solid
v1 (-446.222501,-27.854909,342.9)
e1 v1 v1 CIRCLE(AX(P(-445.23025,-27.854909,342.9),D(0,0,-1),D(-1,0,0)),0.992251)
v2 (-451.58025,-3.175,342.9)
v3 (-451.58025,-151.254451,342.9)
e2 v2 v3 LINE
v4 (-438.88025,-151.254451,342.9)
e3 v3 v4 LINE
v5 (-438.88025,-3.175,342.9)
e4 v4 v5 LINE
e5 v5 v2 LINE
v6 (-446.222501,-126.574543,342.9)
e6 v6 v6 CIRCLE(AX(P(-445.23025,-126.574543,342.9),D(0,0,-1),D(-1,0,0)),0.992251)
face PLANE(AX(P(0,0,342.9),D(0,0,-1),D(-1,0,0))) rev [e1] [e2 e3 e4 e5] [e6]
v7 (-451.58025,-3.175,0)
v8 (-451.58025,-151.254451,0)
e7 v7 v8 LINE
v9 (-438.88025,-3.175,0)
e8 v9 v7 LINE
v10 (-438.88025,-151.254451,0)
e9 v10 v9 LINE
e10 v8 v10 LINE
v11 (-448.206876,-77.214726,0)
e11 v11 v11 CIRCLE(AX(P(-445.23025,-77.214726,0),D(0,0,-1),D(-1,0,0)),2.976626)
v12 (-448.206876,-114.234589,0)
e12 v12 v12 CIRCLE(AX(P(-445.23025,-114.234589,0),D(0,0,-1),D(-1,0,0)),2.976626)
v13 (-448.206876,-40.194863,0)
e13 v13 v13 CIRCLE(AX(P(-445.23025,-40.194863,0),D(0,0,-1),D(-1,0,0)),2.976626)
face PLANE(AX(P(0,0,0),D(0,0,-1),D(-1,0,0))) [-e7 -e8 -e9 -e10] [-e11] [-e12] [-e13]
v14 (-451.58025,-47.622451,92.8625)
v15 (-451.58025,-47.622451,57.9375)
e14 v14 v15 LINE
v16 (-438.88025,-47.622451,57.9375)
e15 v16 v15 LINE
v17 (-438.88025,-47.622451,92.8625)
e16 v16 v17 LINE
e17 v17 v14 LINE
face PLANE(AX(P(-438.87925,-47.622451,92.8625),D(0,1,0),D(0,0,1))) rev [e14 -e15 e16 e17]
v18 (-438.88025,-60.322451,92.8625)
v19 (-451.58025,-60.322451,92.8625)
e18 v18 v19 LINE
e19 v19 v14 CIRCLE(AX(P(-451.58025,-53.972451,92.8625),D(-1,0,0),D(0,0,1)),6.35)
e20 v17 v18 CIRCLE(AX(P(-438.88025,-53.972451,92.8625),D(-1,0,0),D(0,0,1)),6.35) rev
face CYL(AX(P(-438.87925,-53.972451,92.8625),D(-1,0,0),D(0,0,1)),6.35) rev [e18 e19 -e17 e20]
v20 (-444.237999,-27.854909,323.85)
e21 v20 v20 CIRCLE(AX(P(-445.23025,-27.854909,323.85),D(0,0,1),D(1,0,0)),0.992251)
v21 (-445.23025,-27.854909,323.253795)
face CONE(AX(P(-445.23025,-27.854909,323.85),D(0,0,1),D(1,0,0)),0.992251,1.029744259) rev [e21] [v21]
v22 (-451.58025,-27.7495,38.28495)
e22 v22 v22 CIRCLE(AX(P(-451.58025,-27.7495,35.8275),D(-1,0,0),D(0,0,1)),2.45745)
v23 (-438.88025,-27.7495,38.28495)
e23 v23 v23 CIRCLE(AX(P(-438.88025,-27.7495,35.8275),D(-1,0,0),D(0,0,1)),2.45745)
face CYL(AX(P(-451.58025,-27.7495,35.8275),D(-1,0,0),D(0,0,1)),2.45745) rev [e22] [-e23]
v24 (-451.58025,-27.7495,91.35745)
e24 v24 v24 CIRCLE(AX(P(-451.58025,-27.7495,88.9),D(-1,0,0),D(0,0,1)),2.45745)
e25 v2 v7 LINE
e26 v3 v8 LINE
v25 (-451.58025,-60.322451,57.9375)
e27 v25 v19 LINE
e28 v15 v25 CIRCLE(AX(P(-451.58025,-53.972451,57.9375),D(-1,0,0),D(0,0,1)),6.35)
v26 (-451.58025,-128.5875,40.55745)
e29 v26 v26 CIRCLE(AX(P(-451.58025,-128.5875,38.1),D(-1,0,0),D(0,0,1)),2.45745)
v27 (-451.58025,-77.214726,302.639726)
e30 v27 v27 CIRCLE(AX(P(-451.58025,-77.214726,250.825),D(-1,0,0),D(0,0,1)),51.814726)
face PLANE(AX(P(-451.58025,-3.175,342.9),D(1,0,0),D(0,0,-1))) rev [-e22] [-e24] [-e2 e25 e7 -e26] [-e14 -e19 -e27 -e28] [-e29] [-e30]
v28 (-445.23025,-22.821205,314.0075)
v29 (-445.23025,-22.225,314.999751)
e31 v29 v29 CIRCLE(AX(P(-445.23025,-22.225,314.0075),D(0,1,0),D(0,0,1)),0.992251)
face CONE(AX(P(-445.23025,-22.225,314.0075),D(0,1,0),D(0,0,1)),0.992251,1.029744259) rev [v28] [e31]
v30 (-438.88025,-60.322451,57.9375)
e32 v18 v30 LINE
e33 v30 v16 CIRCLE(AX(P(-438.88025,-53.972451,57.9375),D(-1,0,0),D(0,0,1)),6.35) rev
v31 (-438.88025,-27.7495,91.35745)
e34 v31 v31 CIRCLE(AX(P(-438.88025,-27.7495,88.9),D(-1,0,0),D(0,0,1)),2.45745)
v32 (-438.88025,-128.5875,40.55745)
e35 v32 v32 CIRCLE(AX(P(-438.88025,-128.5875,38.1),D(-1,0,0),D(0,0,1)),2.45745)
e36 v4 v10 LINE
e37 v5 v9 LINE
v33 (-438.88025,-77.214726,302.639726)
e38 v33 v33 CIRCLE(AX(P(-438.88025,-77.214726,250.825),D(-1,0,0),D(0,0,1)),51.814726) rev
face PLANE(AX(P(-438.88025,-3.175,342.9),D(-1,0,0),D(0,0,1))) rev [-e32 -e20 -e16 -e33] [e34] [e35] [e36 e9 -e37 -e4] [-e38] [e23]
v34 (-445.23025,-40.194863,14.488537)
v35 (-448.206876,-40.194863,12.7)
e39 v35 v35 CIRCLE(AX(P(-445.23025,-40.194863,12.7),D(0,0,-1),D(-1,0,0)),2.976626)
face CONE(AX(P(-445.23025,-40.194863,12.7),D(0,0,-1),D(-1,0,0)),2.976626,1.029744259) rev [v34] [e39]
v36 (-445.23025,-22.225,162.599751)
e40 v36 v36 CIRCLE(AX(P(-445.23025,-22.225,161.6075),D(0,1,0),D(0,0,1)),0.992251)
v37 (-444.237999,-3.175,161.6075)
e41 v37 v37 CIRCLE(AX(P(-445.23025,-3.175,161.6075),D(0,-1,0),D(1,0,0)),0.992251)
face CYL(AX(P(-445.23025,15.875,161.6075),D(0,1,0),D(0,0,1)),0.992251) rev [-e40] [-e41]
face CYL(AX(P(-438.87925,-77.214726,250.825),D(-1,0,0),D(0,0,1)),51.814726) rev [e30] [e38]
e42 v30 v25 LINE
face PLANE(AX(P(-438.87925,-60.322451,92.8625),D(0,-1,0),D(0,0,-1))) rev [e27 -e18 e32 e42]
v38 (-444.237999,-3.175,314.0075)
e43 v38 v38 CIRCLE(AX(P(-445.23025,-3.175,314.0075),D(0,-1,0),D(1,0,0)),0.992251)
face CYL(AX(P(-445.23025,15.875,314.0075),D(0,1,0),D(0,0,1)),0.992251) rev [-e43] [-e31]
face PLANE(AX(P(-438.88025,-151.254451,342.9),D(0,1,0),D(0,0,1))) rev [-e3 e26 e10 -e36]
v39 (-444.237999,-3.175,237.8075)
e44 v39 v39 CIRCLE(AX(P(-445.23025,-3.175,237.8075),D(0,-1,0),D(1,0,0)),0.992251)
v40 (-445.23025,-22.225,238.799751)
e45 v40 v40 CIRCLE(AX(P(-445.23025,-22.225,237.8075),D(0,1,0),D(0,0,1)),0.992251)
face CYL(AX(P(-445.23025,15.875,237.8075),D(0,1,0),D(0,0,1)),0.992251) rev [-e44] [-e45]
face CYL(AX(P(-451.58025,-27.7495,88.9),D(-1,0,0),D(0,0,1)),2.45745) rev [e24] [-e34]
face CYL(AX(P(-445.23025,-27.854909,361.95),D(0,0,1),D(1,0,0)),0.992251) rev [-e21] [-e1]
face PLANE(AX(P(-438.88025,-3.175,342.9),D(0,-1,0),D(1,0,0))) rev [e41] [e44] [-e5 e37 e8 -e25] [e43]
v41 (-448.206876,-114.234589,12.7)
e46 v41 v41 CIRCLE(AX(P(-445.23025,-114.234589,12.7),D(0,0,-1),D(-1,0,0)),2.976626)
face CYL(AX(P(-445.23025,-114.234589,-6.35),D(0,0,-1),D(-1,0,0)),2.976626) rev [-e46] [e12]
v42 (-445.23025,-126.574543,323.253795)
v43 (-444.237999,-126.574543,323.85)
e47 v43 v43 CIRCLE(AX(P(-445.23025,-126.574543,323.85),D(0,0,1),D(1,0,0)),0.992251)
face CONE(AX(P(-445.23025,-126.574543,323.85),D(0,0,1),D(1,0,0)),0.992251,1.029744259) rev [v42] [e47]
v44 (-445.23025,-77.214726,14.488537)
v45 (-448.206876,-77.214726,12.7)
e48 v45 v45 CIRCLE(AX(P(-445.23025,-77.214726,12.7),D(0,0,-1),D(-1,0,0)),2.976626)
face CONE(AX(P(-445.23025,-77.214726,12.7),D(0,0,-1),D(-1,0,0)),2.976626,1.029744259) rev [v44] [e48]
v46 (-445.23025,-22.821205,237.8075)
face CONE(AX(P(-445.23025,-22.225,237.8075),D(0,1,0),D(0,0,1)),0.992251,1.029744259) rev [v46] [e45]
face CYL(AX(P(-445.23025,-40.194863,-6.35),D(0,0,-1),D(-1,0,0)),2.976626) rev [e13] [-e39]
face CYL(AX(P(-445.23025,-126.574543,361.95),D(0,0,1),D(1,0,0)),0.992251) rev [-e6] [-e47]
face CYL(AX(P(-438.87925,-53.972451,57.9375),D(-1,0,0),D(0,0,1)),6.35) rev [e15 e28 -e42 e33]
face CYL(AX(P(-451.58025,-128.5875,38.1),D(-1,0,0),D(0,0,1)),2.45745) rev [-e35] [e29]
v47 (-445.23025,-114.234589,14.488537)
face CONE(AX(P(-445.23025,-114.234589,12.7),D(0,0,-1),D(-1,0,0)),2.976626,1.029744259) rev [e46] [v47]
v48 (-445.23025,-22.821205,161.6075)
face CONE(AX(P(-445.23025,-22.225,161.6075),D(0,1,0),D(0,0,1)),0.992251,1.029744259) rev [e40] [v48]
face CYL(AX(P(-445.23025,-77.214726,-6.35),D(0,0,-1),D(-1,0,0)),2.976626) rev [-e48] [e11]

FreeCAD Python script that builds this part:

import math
import FreeCAD as App
import Part
import Sketcher

V = App.Vector
Q = App.Units.Quantity

doc = App.newDocument("Part")
body = doc.addObject("PartDesign::Body", "Body")

# Sketch on XY plane
sketch1 = doc.addObject("Sketcher::SketchObject", "Sketch")
body.addObject(sketch1)
sketch1.AttachmentSupport = (doc.XY_Plane, [""])
sketch1.MapMode = "FlatFace"
sketch1.addGeometry([
    Part.LineSegment(V(-452, -3, 0), V(-452, -151, 0)),
    Part.LineSegment(V(-452, -151, 0), V(-439, -151, 0)),
    Part.LineSegment(V(-439, -151, 0), V(-439, -3, 0)),
    Part.LineSegment(V(-439, -3, 0), V(-452, -3, 0)),
], False)
sketch1.addConstraint([
    Sketcher.Constraint("Coincident", 0, 2, 1, 1),
    Sketcher.Constraint("Coincident", 1, 2, 2, 1),
    Sketcher.Constraint("Coincident", 2, 2, 3, 1),
    Sketcher.Constraint("Coincident", 3, 2, 0, 1),
    Sketcher.Constraint("Vertical", 0),
    Sketcher.Constraint("Horizontal", 1),
    Sketcher.Constraint("Vertical", 2),
    Sketcher.Constraint("Horizontal", 3),
    Sketcher.Constraint("DistanceX", 1, 1, 1, 2, Q("0.5 in")),
    Sketcher.Constraint("DistanceY", 2, 2, -1, 1, Q("0.125 in")),
    Sketcher.Constraint("DistanceY", 0, 2, 0, 1, 148.079451),
    Sketcher.Constraint("DistanceX", 0, 2, -1, 1, 451.58025),
])
pad1 = doc.addObject("PartDesign::Pad", "Pad")
body.addObject(pad1)
pad1.Profile = sketch1
pad1.Length = Q("13.5 in")

# Sketch on XY plane
sketch2 = doc.addObject("Sketcher::SketchObject", "Sketch001")
body.addObject(sketch2)
sketch2.AttachmentSupport = (doc.XY_Plane, [""])
sketch2.MapMode = "FlatFace"
sketch2.AttachmentOffset = App.Placement(V(0, 0, -0.25 * 25.4), App.Rotation())
sketch2.addGeometry([
    Part.Circle(V(-445.2, -40.2, 0), V(0, 0, 1), 3),  # 0
    Part.Circle(V(-445.2, -77.2, 0), V(0, 0, 1), 3),  # 1
    Part.Circle(V(-445.2, -114.2, 0), V(0, 0, 1), 3),  # 2
    Part.Circle(V(-281.2, -179.1, 0), V(0, 0, 1), 3),  # 3
    Part.Circle(V(-281.2, -214.3, 0), V(0, 0, 1), 3),  # 4
    Part.Circle(V(-227, -186.7, 0), V(0, 0, 1), 3),  # 5
    Part.Circle(V(-182.4, -186.7, 0), V(0, 0, 1), 3),  # 6
    Part.Circle(V(-137.8, -186.7, 0), V(0, 0, 1), 3),  # 7
    Part.Circle(V(-83.6, -214.3, 0), V(0, 0, 1), 3),  # 8
    Part.Circle(V(-83.6, -179.1, 0), V(0, 0, 1), 3),  # 9
    Part.Circle(V(80.4, -114.2, 0), V(0, 0, 1), 3),  # 10
    Part.Circle(V(80.4, -40.2, 0), V(0, 0, 1), 3),  # 11
], False)
sketch2.addConstraint([
    Sketcher.Constraint("Equal", 0, 1),
    Sketcher.Constraint("Equal", 1, 2),
    Sketcher.Constraint("Equal", 2, 3),
    Sketcher.Constraint("Equal", 3, 4),
    Sketcher.Constraint("Equal", 4, 5),
    Sketcher.Constraint("Equal", 5, 6),
    Sketcher.Constraint("Equal", 6, 7),
    Sketcher.Constraint("Equal", 7, 8),
    Sketcher.Constraint("Equal", 8, 9),
    Sketcher.Constraint("Equal", 9, 10),
    Sketcher.Constraint("Equal", 10, 11),
    Sketcher.Constraint("Horizontal", 5, 3, 6, 3),
    Sketcher.Constraint("Horizontal", 6, 3, 7, 3),
    Sketcher.Constraint("Horizontal", 4, 3, 8, 3),
    Sketcher.Constraint("Horizontal", 3, 3, 9, 3),
    Sketcher.Constraint("Horizontal", 2, 3, 10, 3),
    Sketcher.Constraint("Horizontal", 0, 3, 11, 3),
    Sketcher.Constraint("Vertical", 0, 3, 1, 3),
    Sketcher.Constraint("Vertical", 1, 3, 2, 3),
    Sketcher.Constraint("Vertical", 3, 3, 4, 3),
    Sketcher.Constraint("Vertical", 8, 3, 9, 3),
    Sketcher.Constraint("Vertical", 10, 3, 11, 3),
    Sketcher.Constraint("DistanceY", 5, 3, -1, 1, Q("7.35 in")),
    Sketcher.Constraint("DistanceY", 4, 3, -1, 1, Q("8.4375 in")),
    Sketcher.Constraint("DistanceX", 7, 3, -1, 1, Q("5.424 in")),
    Sketcher.Constraint("DistanceX", 2, 3, 3, 3, Q("6.458 in")),
    Sketcher.Constraint("DistanceX", 4, 3, 8, 3, Q("7.779 in")),
    Sketcher.Constraint("DistanceX", 9, 3, 10, 3, Q("6.458 in")),
    Sketcher.Constraint("Diameter", 0, 5.953252),
    Sketcher.Constraint("DistanceX", 5, 3, -1, 1, Q("8.9385 in")),
    Sketcher.Constraint("DistanceX", 3, 3, 6, 3, Q("3.8895 in")),
    Sketcher.Constraint("DistanceX", 0, 3, -1, 1, 445.23025),
    Sketcher.Constraint("DistanceY", 2, 3, -1, 1, 114.234589),
    Sketcher.Constraint("DistanceY", 3, 3, 2, 3, 64.871248),
    Sketcher.Constraint("DistanceY", 3, 3, 1, 3, 101.891111),
    Sketcher.Constraint("DistanceY", 0, 3, -1, 1, 40.194863),
])
doc.recompute()
hole = doc.addObject("PartDesign::Hole", "Hole")
body.addObject(hole)
hole.Profile = sketch2
hole.ThreadType = "None"
hole.Diameter = 5.953252
hole.DepthType = "Dimension"
hole.Depth = Q("0.5 in")
hole.DrillPoint = "Angled"
hole.DrillPointAngle = 118
hole.Reversed = True

# Sketch on XY plane
sketch3 = doc.addObject("Sketcher::SketchObject", "Sketch002")
body.addObject(sketch3)
sketch3.AttachmentSupport = (doc.XY_Plane, [""])
sketch3.MapMode = "FlatFace"
sketch3.AttachmentOffset = App.Placement(V(0, 0, -0.25 * 25.4), App.Rotation())
sketch3.addGeometry([
    Part.Circle(V(-445.2, -114.2, 0), V(0, 0, 1), 3),  # 0
    Part.Circle(V(-445.2, -77.2, 0), V(0, 0, 1), 3),  # 1
    Part.Circle(V(-445.2, -40.2, 0), V(0, 0, 1), 3),  # 2
    Part.Circle(V(-281.2, -179.1, 0), V(0, 0, 1), 3),  # 3
    Part.Circle(V(-281.2, -214.3, 0), V(0, 0, 1), 3),  # 4
], False)
sketch3.addConstraint([
    Sketcher.Constraint("Equal", 0, 1),
    Sketcher.Constraint("Equal", 1, 2),
    Sketcher.Constraint("Equal", 2, 3),
    Sketcher.Constraint("Equal", 3, 4),
    Sketcher.Constraint("Vertical", 0, 3, 1, 3),
    Sketcher.Constraint("Vertical", 1, 3, 2, 3),
    Sketcher.Constraint("Vertical", 3, 3, 4, 3),
    Sketcher.Constraint("DistanceY", 4, 3, -1, 1, Q("8.4375 in")),
    Sketcher.Constraint("DistanceX", 0, 3, 3, 3, Q("6.458 in")),
    Sketcher.Constraint("Diameter", 0, 5.953252),
    Sketcher.Constraint("DistanceX", 0, 3, -1, 1, 445.23025),
    Sketcher.Constraint("DistanceY", 0, 3, -1, 1, 114.234589),
    Sketcher.Constraint("DistanceY", 3, 3, 0, 3, 64.871248),
    Sketcher.Constraint("DistanceY", 3, 3, 1, 3, 101.891111),
    Sketcher.Constraint("DistanceY", 2, 3, -1, 1, 40.194863),
])
doc.recompute()
hole2 = doc.addObject("PartDesign::Hole", "Hole001")
body.addObject(hole2)
hole2.Profile = sketch3
hole2.ThreadType = "None"
hole2.Diameter = 5.953252
hole2.DepthType = "Dimension"
hole2.Depth = Q("0.75 in")
hole2.DrillPoint = "Angled"
hole2.DrillPointAngle = 118
hole2.Reversed = True

# Sketch on XZ plane
sketch4 = doc.addObject("Sketcher::SketchObject", "Sketch003")
body.addObject(sketch4)
sketch4.AttachmentSupport = (doc.XZ_Plane, [""])
sketch4.MapMode = "FlatFace"
sketch4.AttachmentOffset = App.Placement(V(0, 0, -0.625 * 25.4), App.Rotation())
sketch4.addGeometry([
    Part.Circle(V(-445.2, 314, 0), V(0, 0, 1), 1),  # 0
    Part.Circle(V(-281.2, 314, 0), V(0, 0, 1), 1),  # 1
    Part.Circle(V(-445.2, 237.8, 0), V(0, 0, 1), 1),  # 2
    Part.Circle(V(-281.2, 237.8, 0), V(0, 0, 1), 1),  # 3
    Part.Circle(V(-445.2, 161.6, 0), V(0, 0, 1), 1),  # 4
    Part.Circle(V(-281.2, 161.6, 0), V(0, 0, 1), 1),  # 5
    Part.Circle(V(-450.4, 352.4, 0), V(0, 0, 1), 1),  # 6
    Part.Circle(V(-298, 352.4, 0), V(0, 0, 1), 1),  # 7
    Part.Circle(V(-183.7, 352.4, 0), V(0, 0, 1), 1),  # 8
    Part.Circle(V(-69.4, 352.4, 0), V(0, 0, 1), 1),  # 9
    Part.Circle(V(83, 352.4, 0), V(0, 0, 1), 1),  # 10
    Part.Circle(V(-86.2, 161.6, 0), V(0, 0, 1), 1),  # 11
    Part.Circle(V(77.9, 161.6, 0), V(0, 0, 1), 1),  # 12
    Part.Circle(V(-86.2, 237.8, 0), V(0, 0, 1), 1),  # 13
    Part.Circle(V(77.9, 237.8, 0), V(0, 0, 1), 1),  # 14
    Part.Circle(V(-86.2, 314, 0), V(0, 0, 1), 1),  # 15
    Part.Circle(V(77.9, 314, 0), V(0, 0, 1), 1),  # 16
], False)
sketch4.addConstraint([
    Sketcher.Constraint("Equal", 0, 1),
    Sketcher.Constraint("Equal", 1, 2),
    Sketcher.Constraint("Equal", 2, 3),
    Sketcher.Constraint("Equal", 3, 4),
    Sketcher.Constraint("Equal", 4, 5),
    Sketcher.Constraint("Equal", 5, 6),
    Sketcher.Constraint("Equal", 6, 7),
    Sketcher.Constraint("Equal", 7, 8),
    Sketcher.Constraint("Equal", 8, 9),
    Sketcher.Constraint("Equal", 9, 10),
    Sketcher.Constraint("Equal", 10, 11),
    Sketcher.Constraint("Equal", 11, 12),
    Sketcher.Constraint("Equal", 12, 13),
    Sketcher.Constraint("Equal", 13, 14),
    Sketcher.Constraint("Equal", 14, 15),
    Sketcher.Constraint("Equal", 15, 16),
    Sketcher.Constraint("Horizontal", 0, 3, 1, 3),
    Sketcher.Constraint("Horizontal", 2, 3, 3, 3),
    Sketcher.Constraint("Horizontal", 4, 3, 5, 3),
    Sketcher.Constraint("Horizontal", 6, 3, 7, 3),
    Sketcher.Constraint("Horizontal", 7, 3, 8, 3),
    Sketcher.Constraint("Horizontal", 8, 3, 9, 3),
    Sketcher.Constraint("Horizontal", 9, 3, 10, 3),
    Sketcher.Constraint("Horizontal", 5, 3, 11, 3),
    Sketcher.Constraint("Horizontal", 11, 3, 12, 3),
    Sketcher.Constraint("Horizontal", 3, 3, 13, 3),
    Sketcher.Constraint("Horizontal", 13, 3, 14, 3),
    Sketcher.Constraint("Horizontal", 1, 3, 15, 3),
    Sketcher.Constraint("Horizontal", 15, 3, 16, 3),
    Sketcher.Constraint("Vertical", 0, 3, 2, 3),
    Sketcher.Constraint("Vertical", 1, 3, 3, 3),
    Sketcher.Constraint("Vertical", 2, 3, 4, 3),
    Sketcher.Constraint("Vertical", 3, 3, 5, 3),
    Sketcher.Constraint("Vertical", 11, 3, 13, 3),
    Sketcher.Constraint("Vertical", 12, 3, 14, 3),
    Sketcher.Constraint("Vertical", 13, 3, 15, 3),
    Sketcher.Constraint("Vertical", 14, 3, 16, 3),
    Sketcher.Constraint("DistanceY", 2, 3, 0, 3, Q("3 in")),
    Sketcher.Constraint("DistanceY", 4, 3, 2, 3, Q("3 in")),
    Sketcher.Constraint("DistanceX", 6, 3, 7, 3, Q("6 in")),
    Sketcher.Constraint("DistanceX", 7, 3, 9, 3, Q("9 in")),
    Sketcher.Constraint("DistanceX", 9, 3, 10, 3, Q("6 in")),
    Sketcher.Constraint("DistanceX", 7, 3, 8, 3, Q("4.5 in")),
    Sketcher.Constraint("DistanceY", -1, 1, 6, 3, Q("13.875 in")),
    Sketcher.Constraint("DistanceX", 0, 3, 1, 3, Q("6.458 in")),
    Sketcher.Constraint("DistanceX", 5, 3, 11, 3, Q("7.679 in")),
    Sketcher.Constraint("DistanceX", 11, 3, 12, 3, Q("6.458 in")),
    Sketcher.Constraint("Diameter", 0, 1.984502),
    Sketcher.Constraint("DistanceY", -1, 1, 0, 3, Q("12.3625 in")),
    Sketcher.Constraint("DistanceX", 6, 3, 0, 3, Q("0.2025 in")),
    Sketcher.Constraint("DistanceX", 0, 3, -1, 1, 445.23025),
])
doc.recompute()
hole3 = doc.addObject("PartDesign::Hole", "Hole002")
body.addObject(hole3)
hole3.Profile = sketch4
hole3.ThreadType = "None"
hole3.Diameter = 1.984502
hole3.DepthType = "Dimension"
hole3.Depth = Q("1.5 in")
hole3.DrillPoint = "Angled"
hole3.DrillPointAngle = 118
hole3.HoleCutType = "Countersink"
hole3.HoleCutDiameter = Q("0.4 in")
hole3.HoleCutCountersinkAngle = 82
hole3.Reversed = True

# Sketch on XY plane
sketch5 = doc.addObject("Sketcher::SketchObject", "Sketch004")
body.addObject(sketch5)
sketch5.AttachmentSupport = (doc.XY_Plane, [""])
sketch5.MapMode = "FlatFace"
sketch5.AttachmentOffset = App.Placement(V(0, 0, 14.25 * 25.4), App.Rotation())
sketch5.addGeometry([
    Part.Circle(V(81, -28.6, 0), V(0, 0, 1), 1),  # 0
    Part.Circle(V(-445.2, -27.9, 0), V(0, 0, 1), 1),  # 1
    Part.Circle(V(-445.2, -126.6, 0), V(0, 0, 1), 1),  # 2
    Part.Circle(V(-281.2, -195, 0), V(0, 0, 1), 1),  # 3
    Part.Circle(V(-281.2, -41.5, 0), V(0, 0, 1), 1),  # 4
    Part.Circle(V(-236, -186.7, 0), V(0, 0, 1), 1),  # 5
    Part.Circle(V(-128.8, -186.7, 0), V(0, 0, 1), 1),  # 6
    Part.Circle(V(-83.1, -41.8, 0), V(0, 0, 1), 1),  # 7
    Part.Circle(V(-83.5, -195.3, 0), V(0, 0, 1), 1),  # 8
    Part.Circle(V(80.7, -127.3, 0), V(0, 0, 1), 1),  # 9
], False)
sketch5.addConstraint([
    Sketcher.Constraint("Equal", 0, 1),
    Sketcher.Constraint("Equal", 1, 2),
    Sketcher.Constraint("Equal", 2, 3),
    Sketcher.Constraint("Equal", 3, 4),
    Sketcher.Constraint("Equal", 4, 5),
    Sketcher.Constraint("Equal", 5, 6),
    Sketcher.Constraint("Equal", 6, 7),
    Sketcher.Constraint("Equal", 7, 8),
    Sketcher.Constraint("Equal", 8, 9),
    Sketcher.Constraint("Horizontal", 5, 3, 6, 3),
    Sketcher.Constraint("Vertical", 1, 3, 2, 3),
    Sketcher.Constraint("Vertical", 3, 3, 4, 3),
    Sketcher.Constraint("DistanceY", 5, 3, -1, 1, Q("7.35 in")),
    Sketcher.Constraint("DistanceX", 2, 3, 3, 3, Q("6.458 in")),
    Sketcher.Constraint("Diameter", 0, 1.984502),
    Sketcher.Constraint("DistanceX", 3, 3, 5, 3, Q("1.7808 in")),
    Sketcher.Constraint("DistanceX", 5, 3, 6, 3, Q("4.2174 in")),
    Sketcher.Constraint("DistanceX", 1, 3, -1, 1, 445.23025),
    Sketcher.Constraint("DistanceY", 1, 3, -1, 1, 27.854909),
    Sketcher.Constraint("DistanceX", 7, 3, -1, 1, 83.08166),
    Sketcher.Constraint("DistanceY", 0, 3, 1, 3, 0.725819),
    Sketcher.Constraint("DistanceY", 3, 3, 1, 3, 167.143008),
    Sketcher.Constraint("DistanceY", 2, 3, 4, 3, 85.03496),
    Sketcher.Constraint("DistanceY", 7, 3, 0, 3, 13.232118),
    Sketcher.Constraint("DistanceY", 8, 3, 7, 3, 153.457749),
    Sketcher.Constraint("DistanceX", 8, 3, 0, 3, 164.493659),
    Sketcher.Constraint("DistanceX", 9, 3, 0, 3, 0.27233),
    Sketcher.Constraint("DistanceY", 9, 3, 0, 3, 98.719259),
    Sketcher.Constraint("DistanceX", -1, 1, 0, 3, 80.988666),
    Sketcher.Constraint("DistanceY", 2, 3, -1, 1, 126.574543),
])
doc.recompute()
hole4 = doc.addObject("PartDesign::Hole", "Hole003")
body.addObject(hole4)
hole4.Profile = sketch5
hole4.ThreadType = "None"
hole4.Diameter = 1.984502
hole4.DepthType = "Dimension"
hole4.Depth = Q("1.5 in")
hole4.DrillPoint = "Angled"
hole4.DrillPointAngle = 118
hole4.HoleCutType = "Countersink"
hole4.HoleCutDiameter = Q("0.4 in")
hole4.HoleCutCountersinkAngle = 82

# Sketch on YZ plane
sketch6 = doc.addObject("Sketcher::SketchObject", "Sketch005")
body.addObject(sketch6)
sketch6.AttachmentSupport = (doc.YZ_Plane, [""])
sketch6.MapMode = "FlatFace"
sketch6.AttachmentOffset = App.Placement(V(0, 0, -451.58025), App.Rotation())
sketch6.addGeometry([
    Part.Circle(V(-27.7, 88.9, 0), V(0, 0, 1), 2.5),
    Part.Circle(V(-27.7, 35.8, 0), V(0, 0, 1), 2.5),
    Part.Circle(V(-128.6, 38.1, 0), V(0, 0, 1), 2.5),
], False)
sketch6.addConstraint([
    Sketcher.Constraint("Equal", 0, 1),
    Sketcher.Constraint("Equal", 1, 2),
    Sketcher.Constraint("Vertical", 0, 3, 1, 3),
    Sketcher.Constraint("DistanceY", 2, 3, 0, 3, Q("2 in")),
    Sketcher.Constraint("Diameter", 0, Q("0.1935 in")),
    Sketcher.Constraint("DistanceY", -1, 1, 0, 3, Q("3.5 in")),
    Sketcher.Constraint("DistanceX", 2, 3, 1, 3, Q("3.97 in")),
    Sketcher.Constraint("DistanceX", 2, 3, -1, 1, Q("5.0625 in")),
    Sketcher.Constraint("DistanceY", -1, 1, 1, 3, 35.8275),
])
doc.recompute()
hole5 = doc.addObject("PartDesign::Hole", "Hole004")
body.addObject(hole5)
hole5.Profile = sketch6
hole5.ThreadType = "None"
hole5.Diameter = Q("0.1935 in")
hole5.DepthType = "Dimension"
hole5.Depth = Q("0.5 in")
hole5.DrillPoint = "Flat"
hole5.Reversed = True

# Sketch on YZ plane
sketch7 = doc.addObject("Sketcher::SketchObject", "Sketch006")
body.addObject(sketch7)
sketch7.AttachmentSupport = (doc.YZ_Plane, [""])
sketch7.MapMode = "FlatFace"
sketch7.AttachmentOffset = App.Placement(V(0, 0, -451.58025), App.Rotation())
sketch7.addGeometry(Part.Circle(V(-77, 251, 0), V(0, 0, 1), 52), False)
sketch7.addConstraint([
    Sketcher.Constraint("Diameter", 0, 103.629451),
    Sketcher.Constraint("DistanceY", -1, 1, 0, 3, Q("9.875 in")),
    Sketcher.Constraint("DistanceX", 0, 3, -1, 1, 77.214726),
])
pocket1 = doc.addObject("PartDesign::Pocket", "Pocket")
body.addObject(pocket1)
pocket1.Profile = sketch7
pocket1.Type = "UpToFirst"
pocket1.Reversed = True

# Sketch on YZ plane
sketch8 = doc.addObject("Sketcher::SketchObject", "Sketch007")
body.addObject(sketch8)
sketch8.AttachmentSupport = (doc.YZ_Plane, [""])
sketch8.MapMode = "FlatFace"
sketch8.AttachmentOffset = App.Placement(V(0, 0, -451.58025), App.Rotation())
sketch8.addGeometry([
    Part.LineSegment(V(-60, 58, 0), V(-60, 93, 0)),
    Part.ArcOfCircle(Part.Circle(V(-54, 93, 0), V(0, 0, 1), 6), math.radians(0), math.radians(180)),
    Part.LineSegment(V(-48, 93, 0), V(-48, 58, 0)),
    Part.ArcOfCircle(Part.Circle(V(-54, 58, 0), V(0, 0, 1), 6), math.radians(180), math.radians(360)),
], False)
sketch8.addConstraint([
    Sketcher.Constraint("Tangent", 0, 2, 1, 2),
    Sketcher.Constraint("Tangent", 1, 1, 2, 1),
    Sketcher.Constraint("Tangent", 2, 2, 3, 2),
    Sketcher.Constraint("Tangent", 3, 1, 0, 1),
    Sketcher.Constraint("Vertical", 0),
    Sketcher.Constraint("Vertical", 2),
    Sketcher.Constraint("Radius", 1, Q("0.25 in")),
    Sketcher.Constraint("DistanceY", 0, 1, 0, 2, Q("1.375 in")),
    Sketcher.Constraint("DistanceY", -1, 1, 1, 3, 92.8625),
    Sketcher.Constraint("DistanceX", 1, 3, -1, 1, 53.972451),
])
pocket2 = doc.addObject("PartDesign::Pocket", "Pocket001")
body.addObject(pocket2)
pocket2.Profile = sketch8
pocket2.Type = "UpToFirst"
pocket2.Reversed = True

doc.recompute()
